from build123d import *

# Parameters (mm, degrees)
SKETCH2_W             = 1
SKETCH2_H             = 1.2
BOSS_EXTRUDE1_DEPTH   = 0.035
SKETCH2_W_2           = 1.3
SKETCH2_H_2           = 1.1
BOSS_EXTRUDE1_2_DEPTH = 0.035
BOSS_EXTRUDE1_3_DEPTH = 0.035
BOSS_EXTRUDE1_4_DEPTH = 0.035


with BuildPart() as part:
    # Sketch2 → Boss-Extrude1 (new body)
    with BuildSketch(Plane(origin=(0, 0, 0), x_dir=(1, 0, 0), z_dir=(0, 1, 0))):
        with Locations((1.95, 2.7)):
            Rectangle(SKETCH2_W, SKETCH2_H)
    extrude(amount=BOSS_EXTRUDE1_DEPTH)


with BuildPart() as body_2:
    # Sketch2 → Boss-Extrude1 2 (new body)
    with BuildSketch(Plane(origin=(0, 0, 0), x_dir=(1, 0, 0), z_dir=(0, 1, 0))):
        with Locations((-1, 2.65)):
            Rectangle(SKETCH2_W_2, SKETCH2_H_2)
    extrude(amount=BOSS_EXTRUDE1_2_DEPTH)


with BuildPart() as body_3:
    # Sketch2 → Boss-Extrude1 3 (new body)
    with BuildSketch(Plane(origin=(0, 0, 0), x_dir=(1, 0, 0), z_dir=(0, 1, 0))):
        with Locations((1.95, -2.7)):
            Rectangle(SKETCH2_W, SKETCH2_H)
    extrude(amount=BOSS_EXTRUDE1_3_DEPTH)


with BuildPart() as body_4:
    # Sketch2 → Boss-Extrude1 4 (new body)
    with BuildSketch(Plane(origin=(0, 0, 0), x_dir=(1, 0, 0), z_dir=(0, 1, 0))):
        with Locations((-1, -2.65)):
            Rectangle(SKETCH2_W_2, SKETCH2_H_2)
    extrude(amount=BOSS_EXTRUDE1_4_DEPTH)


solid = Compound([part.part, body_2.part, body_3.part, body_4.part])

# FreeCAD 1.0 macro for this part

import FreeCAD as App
import Part
import Sketcher

V = App.Vector
Q = App.Units.Quantity


def add_polygon(sketch, points):
    """Adds a closed chain of lines whose ends are joined by coincident constraints."""
    first, n = sketch.GeometryCount, len(points)
    for a, b in zip(points, points[1:] + points[:1]):
        sketch.addGeometry(Part.LineSegment(App.Vector(*a, 0), App.Vector(*b, 0)), False)
    for i in range(n):
        sketch.addConstraint(Sketcher.Constraint("Coincident", first + i, 2, first + (i + 1) % n, 1))

doc = App.newDocument("Part")
body = doc.addObject("PartDesign::Body", "Body")

sketch1 = body.newObject("Sketcher::SketchObject", "Sketch")
sketch1.AttachmentSupport = (doc.getObject("XZ_Plane"), [""])
sketch1.MapMode = "FlatFace"
add_polygon(sketch1, [(1.45, -3.3), (1.45, -2.1), (2.45, -2.1), (2.45, -3.3)])
sketch1.addConstraint(Sketcher.Constraint("Vertical", 0))
sketch1.addConstraint(Sketcher.Constraint("Horizontal", 1))
sketch1.addConstraint(Sketcher.Constraint("Vertical", 2))
sketch1.addConstraint(Sketcher.Constraint("Horizontal", 3))
sketch1.addConstraint(Sketcher.Constraint("DistanceX", 1, 1, 1, 2, Q("1 mm")))
sketch1.addConstraint(Sketcher.Constraint("DistanceY", 0, 1, 0, 2, Q("1.2 mm")))
sketch1.addConstraint(Sketcher.Constraint("DistanceY", 0, 2, -1, 1, Q("2.1 mm")))
sketch1.addConstraint(Sketcher.Constraint("DistanceX", -1, 1, 0, 2, Q("1.45 mm")))
pad1 = body.newObject("PartDesign::Pad", "Pad")
pad1.Profile = sketch1
pad1.Length = 0.035
pad1.Reversed = True
body2 = doc.addObject("PartDesign::Body", "Body001")

sketch2 = body2.newObject("Sketcher::SketchObject", "Sketch001")
sketch2.AttachmentSupport = (doc.getObject("XZ_Plane001"), [""])
sketch2.MapMode = "FlatFace"
add_polygon(sketch2, [(-1.65, -3.2), (-1.65, -2.1), (-0.35, -2.1), (-0.35, -3.2)])
sketch2.addConstraint(Sketcher.Constraint("Vertical", 0))
sketch2.addConstraint(Sketcher.Constraint("Horizontal", 1))
sketch2.addConstraint(Sketcher.Constraint("Vertical", 2))
sketch2.addConstraint(Sketcher.Constraint("Horizontal", 3))
sketch2.addConstraint(Sketcher.Constraint("DistanceX", 1, 1, 1, 2, Q("1.3 mm")))
sketch2.addConstraint(Sketcher.Constraint("DistanceY", 0, 1, 0, 2, Q("1.1 mm")))
sketch2.addConstraint(Sketcher.Constraint("DistanceY", 0, 2, -1, 1, Q("2.1 mm")))
sketch2.addConstraint(Sketcher.Constraint("DistanceX", 0, 2, -1, 1, Q("1.65 mm")))
pad2 = body2.newObject("PartDesign::Pad", "Pad001")
pad2.Profile = sketch2
pad2.Length = 0.035
pad2.Reversed = True
body3 = doc.addObject("PartDesign::Body", "Body002")

sketch3 = body3.newObject("Sketcher::SketchObject", "Sketch002")
sketch3.AttachmentSupport = (doc.getObject("XZ_Plane002"), [""])
sketch3.MapMode = "FlatFace"
add_polygon(sketch3, [(1.45, 2.1), (1.45, 3.3), (2.45, 3.3), (2.45, 2.1)])
sketch3.addConstraint(Sketcher.Constraint("Vertical", 0))
sketch3.addConstraint(Sketcher.Constraint("Horizontal", 1))
sketch3.addConstraint(Sketcher.Constraint("Vertical", 2))
sketch3.addConstraint(Sketcher.Constraint("Horizontal", 3))
sketch3.addConstraint(Sketcher.Constraint("DistanceX", 1, 1, 1, 2, Q("1 mm")))
sketch3.addConstraint(Sketcher.Constraint("DistanceY", 0, 1, 0, 2, Q("1.2 mm")))
sketch3.addConstraint(Sketcher.Constraint("DistanceY", -1, 1, 0, 2, Q("3.3 mm")))
sketch3.addConstraint(Sketcher.Constraint("DistanceX", -1, 1, 0, 2, Q("1.45 mm")))
pad3 = body3.newObject("PartDesign::Pad", "Pad002")
pad3.Profile = sketch3
pad3.Length = 0.035
pad3.Reversed = True
body4 = doc.addObject("PartDesign::Body", "Body003")

sketch4 = body4.newObject("Sketcher::SketchObject", "Sketch003")
sketch4.AttachmentSupport = (doc.getObject("XZ_Plane003"), [""])
sketch4.MapMode = "FlatFace"
add_polygon(sketch4, [(-1.65, 2.1), (-1.65, 3.2), (-0.35, 3.2), (-0.35, 2.1)])
sketch4.addConstraint(Sketcher.Constraint("Vertical", 0))
sketch4.addConstraint(Sketcher.Constraint("Horizontal", 1))
sketch4.addConstraint(Sketcher.Constraint("Vertical", 2))
sketch4.addConstraint(Sketcher.Constraint("Horizontal", 3))
sketch4.addConstraint(Sketcher.Constraint("DistanceX", 1, 1, 1, 2, Q("1.3 mm")))
sketch4.addConstraint(Sketcher.Constraint("DistanceY", 0, 1, 0, 2, Q("1.1 mm")))
sketch4.addConstraint(Sketcher.Constraint("DistanceY", -1, 1, 0, 2, Q("3.2 mm")))
sketch4.addConstraint(Sketcher.Constraint("DistanceX", 0, 2, -1, 1, Q("1.65 mm")))
pad4 = body4.newObject("PartDesign::Pad", "Pad003")
pad4.Profile = sketch4
pad4.Length = 0.035
pad4.Reversed = True

doc.recompute()
